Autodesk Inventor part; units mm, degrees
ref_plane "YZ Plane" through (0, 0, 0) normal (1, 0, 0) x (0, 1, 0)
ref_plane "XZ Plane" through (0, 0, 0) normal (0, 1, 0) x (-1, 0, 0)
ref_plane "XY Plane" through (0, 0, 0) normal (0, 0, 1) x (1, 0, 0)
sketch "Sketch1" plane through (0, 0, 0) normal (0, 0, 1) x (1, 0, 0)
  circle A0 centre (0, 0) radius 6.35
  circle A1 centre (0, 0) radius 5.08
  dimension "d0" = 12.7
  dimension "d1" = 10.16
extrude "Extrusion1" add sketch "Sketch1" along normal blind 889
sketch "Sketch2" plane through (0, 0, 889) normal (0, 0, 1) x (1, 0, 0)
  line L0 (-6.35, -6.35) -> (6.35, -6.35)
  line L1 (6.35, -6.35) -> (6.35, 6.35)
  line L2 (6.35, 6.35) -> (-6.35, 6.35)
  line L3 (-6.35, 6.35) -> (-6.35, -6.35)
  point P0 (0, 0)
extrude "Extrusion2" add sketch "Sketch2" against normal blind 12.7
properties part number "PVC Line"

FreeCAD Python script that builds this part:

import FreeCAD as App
import Part
import Sketcher
from FreeCAD import Vector
Q = App.Units.Quantity


def add_polygon(sketch, points):
    """Adds a closed chain of lines whose ends are joined by coincident constraints."""
    first, n = sketch.GeometryCount, len(points)
    for a, b in zip(points, points[1:] + points[:1]):
        sketch.addGeometry(Part.LineSegment(App.Vector(*a, 0), App.Vector(*b, 0)), False)
    for i in range(n):
        sketch.addConstraint(Sketcher.Constraint("Coincident", first + i, 2, first + (i + 1) % n, 1))

doc = App.newDocument("Part")
body = doc.addObject("PartDesign::Body", "Body")

sketch1 = body.newObject("Sketcher::SketchObject", "Sketch")
sketch1.AttachmentSupport = (doc.getObject("XY_Plane"), [""])
sketch1.MapMode = "FlatFace"
sketch1.addGeometry([
    Part.Circle(Vector(0, 0, 0), Vector(0, 0, 1), 6),
    Part.Circle(Vector(0, 0, 0), Vector(0, 0, 1), 5),
], False)
sketch1.addConstraint([
    Sketcher.Constraint("Coincident", 0, 3, -1, 1),
    Sketcher.Constraint("Coincident", 1, 3, -1, 1),
    Sketcher.Constraint("Diameter", 0, Q("0.5 in")),
    Sketcher.Constraint("Diameter", 1, Q("0.4 in")),
])
pad1 = body.newObject("PartDesign::Pad", "Pad")
pad1.Profile = sketch1
pad1.Length = Q("35 in")

sketch2 = body.newObject("Sketcher::SketchObject", "Sketch001")
sketch2.AttachmentSupport = (doc.getObject("XY_Plane"), [""])
sketch2.MapMode = "FlatFace"
sketch2.AttachmentOffset = App.Placement(Vector(0, 0, 35 * 25.4), App.Rotation())
add_polygon(sketch2, [(-6, 6), (-6, -6), (6, -6), (6, 6)])
sketch2.addConstraint([
    Sketcher.Constraint("Vertical", 0),
    Sketcher.Constraint("Horizontal", 1),
    Sketcher.Constraint("Vertical", 2),
    Sketcher.Constraint("Horizontal", 3),
    Sketcher.Constraint("Symmetric", 0, 2, 2, 2, -1, 1),
    Sketcher.Constraint("Equal", 3, 0),
    Sketcher.Constraint("DistanceX", 1, 1, 1, 2, Q("0.5 in")),
])
pad2 = body.newObject("PartDesign::Pad", "Pad001")
pad2.Profile = sketch2
pad2.Length = Q("0.5 in")
pad2.Reversed = True

doc.recompute()
